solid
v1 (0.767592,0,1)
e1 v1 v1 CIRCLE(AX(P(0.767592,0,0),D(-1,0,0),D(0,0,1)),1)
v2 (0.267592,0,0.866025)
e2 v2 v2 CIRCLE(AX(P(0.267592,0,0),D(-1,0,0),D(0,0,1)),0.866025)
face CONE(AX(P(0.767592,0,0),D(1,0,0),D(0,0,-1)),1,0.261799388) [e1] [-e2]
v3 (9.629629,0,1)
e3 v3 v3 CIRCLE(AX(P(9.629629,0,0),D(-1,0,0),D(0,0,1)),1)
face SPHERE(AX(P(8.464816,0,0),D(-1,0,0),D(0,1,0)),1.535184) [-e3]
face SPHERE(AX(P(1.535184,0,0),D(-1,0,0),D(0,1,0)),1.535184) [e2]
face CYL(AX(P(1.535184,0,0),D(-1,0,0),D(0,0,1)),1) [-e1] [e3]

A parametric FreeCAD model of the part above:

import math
import FreeCAD as App
import Part
import Sketcher

V = App.Vector
Q = App.Units.Quantity

doc = App.newDocument("Part")
body = doc.addObject("PartDesign::Body", "Body")

sketch1 = body.newObject("Sketcher::SketchObject", "Sketch")
sketch1.AttachmentSupport = (doc.getObject("XY_Plane"), [""])
sketch1.MapMode = "FlatFace"
sketch1.addGeometry(Part.LineSegment(V(9.6, 1, 0), V(0.8, 1, 0)), False)
sketch1.addGeometry(Part.LineSegment(V(0.8, 1, 0), V(0.3, 0.9, 0)), False)
sketch1.addGeometry(Part.ArcOfCircle(Part.Circle(V(1.5, 0, 0), V(0, 0, 1), 1.5), math.radians(146), math.radians(180)), False)
sketch1.addGeometry(Part.LineSegment(V(0, 0, 0), V(10, 0, 0)), False)
sketch1.addGeometry(Part.ArcOfCircle(Part.Circle(V(8.5, 0, 0), V(0, 0, 1), 1.5), math.radians(0), math.radians(41)), False)
sketch1.addConstraint(Sketcher.Constraint("Coincident", 0, 2, 1, 1))
sketch1.addConstraint(Sketcher.Constraint("Coincident", 1, 2, 2, 1))
sketch1.addConstraint(Sketcher.Constraint("Coincident", 2, 2, 3, 1))
sketch1.addConstraint(Sketcher.Constraint("Coincident", 3, 2, 4, 1))
sketch1.addConstraint(Sketcher.Constraint("Coincident", 4, 2, 0, 1))
sketch1.addConstraint(Sketcher.Constraint("Horizontal", 0))
sketch1.addConstraint(Sketcher.Constraint("Horizontal", 3))
sketch1.addConstraint(Sketcher.Constraint("Coincident", 2, 2, -1, 1))
sketch1.addConstraint(Sketcher.Constraint("Equal", 2, 4))
sketch1.addConstraint(Sketcher.Constraint("PointOnObject", 2, 3, -1))
sketch1.addConstraint(Sketcher.Constraint("PointOnObject", 4, 3, -1))
sketch1.addConstraint(Sketcher.Constraint("DistanceX", 3, 1, 3, 2, Q("10 mm")))
sketch1.addConstraint(Sketcher.Constraint("Angle", 1, Q("-165 deg")))
sketch1.addConstraint(Sketcher.Constraint("DistanceY", -1, 1, 0, 2, Q("1 mm")))
sketch1.addConstraint(Sketcher.Constraint("DistanceX", 1, 2, 0, 2, Q("0.5 mm")))
sketch1.addConstraint(Sketcher.Constraint("Radius", 2, Q("1.535184 mm")))
revolution = body.newObject("PartDesign::Revolution", "Revolution")
revolution.Profile = sketch1
revolution.ReferenceAxis = (sketch1, ["H_Axis"])
revolution.Angle = 360

doc.recompute()
